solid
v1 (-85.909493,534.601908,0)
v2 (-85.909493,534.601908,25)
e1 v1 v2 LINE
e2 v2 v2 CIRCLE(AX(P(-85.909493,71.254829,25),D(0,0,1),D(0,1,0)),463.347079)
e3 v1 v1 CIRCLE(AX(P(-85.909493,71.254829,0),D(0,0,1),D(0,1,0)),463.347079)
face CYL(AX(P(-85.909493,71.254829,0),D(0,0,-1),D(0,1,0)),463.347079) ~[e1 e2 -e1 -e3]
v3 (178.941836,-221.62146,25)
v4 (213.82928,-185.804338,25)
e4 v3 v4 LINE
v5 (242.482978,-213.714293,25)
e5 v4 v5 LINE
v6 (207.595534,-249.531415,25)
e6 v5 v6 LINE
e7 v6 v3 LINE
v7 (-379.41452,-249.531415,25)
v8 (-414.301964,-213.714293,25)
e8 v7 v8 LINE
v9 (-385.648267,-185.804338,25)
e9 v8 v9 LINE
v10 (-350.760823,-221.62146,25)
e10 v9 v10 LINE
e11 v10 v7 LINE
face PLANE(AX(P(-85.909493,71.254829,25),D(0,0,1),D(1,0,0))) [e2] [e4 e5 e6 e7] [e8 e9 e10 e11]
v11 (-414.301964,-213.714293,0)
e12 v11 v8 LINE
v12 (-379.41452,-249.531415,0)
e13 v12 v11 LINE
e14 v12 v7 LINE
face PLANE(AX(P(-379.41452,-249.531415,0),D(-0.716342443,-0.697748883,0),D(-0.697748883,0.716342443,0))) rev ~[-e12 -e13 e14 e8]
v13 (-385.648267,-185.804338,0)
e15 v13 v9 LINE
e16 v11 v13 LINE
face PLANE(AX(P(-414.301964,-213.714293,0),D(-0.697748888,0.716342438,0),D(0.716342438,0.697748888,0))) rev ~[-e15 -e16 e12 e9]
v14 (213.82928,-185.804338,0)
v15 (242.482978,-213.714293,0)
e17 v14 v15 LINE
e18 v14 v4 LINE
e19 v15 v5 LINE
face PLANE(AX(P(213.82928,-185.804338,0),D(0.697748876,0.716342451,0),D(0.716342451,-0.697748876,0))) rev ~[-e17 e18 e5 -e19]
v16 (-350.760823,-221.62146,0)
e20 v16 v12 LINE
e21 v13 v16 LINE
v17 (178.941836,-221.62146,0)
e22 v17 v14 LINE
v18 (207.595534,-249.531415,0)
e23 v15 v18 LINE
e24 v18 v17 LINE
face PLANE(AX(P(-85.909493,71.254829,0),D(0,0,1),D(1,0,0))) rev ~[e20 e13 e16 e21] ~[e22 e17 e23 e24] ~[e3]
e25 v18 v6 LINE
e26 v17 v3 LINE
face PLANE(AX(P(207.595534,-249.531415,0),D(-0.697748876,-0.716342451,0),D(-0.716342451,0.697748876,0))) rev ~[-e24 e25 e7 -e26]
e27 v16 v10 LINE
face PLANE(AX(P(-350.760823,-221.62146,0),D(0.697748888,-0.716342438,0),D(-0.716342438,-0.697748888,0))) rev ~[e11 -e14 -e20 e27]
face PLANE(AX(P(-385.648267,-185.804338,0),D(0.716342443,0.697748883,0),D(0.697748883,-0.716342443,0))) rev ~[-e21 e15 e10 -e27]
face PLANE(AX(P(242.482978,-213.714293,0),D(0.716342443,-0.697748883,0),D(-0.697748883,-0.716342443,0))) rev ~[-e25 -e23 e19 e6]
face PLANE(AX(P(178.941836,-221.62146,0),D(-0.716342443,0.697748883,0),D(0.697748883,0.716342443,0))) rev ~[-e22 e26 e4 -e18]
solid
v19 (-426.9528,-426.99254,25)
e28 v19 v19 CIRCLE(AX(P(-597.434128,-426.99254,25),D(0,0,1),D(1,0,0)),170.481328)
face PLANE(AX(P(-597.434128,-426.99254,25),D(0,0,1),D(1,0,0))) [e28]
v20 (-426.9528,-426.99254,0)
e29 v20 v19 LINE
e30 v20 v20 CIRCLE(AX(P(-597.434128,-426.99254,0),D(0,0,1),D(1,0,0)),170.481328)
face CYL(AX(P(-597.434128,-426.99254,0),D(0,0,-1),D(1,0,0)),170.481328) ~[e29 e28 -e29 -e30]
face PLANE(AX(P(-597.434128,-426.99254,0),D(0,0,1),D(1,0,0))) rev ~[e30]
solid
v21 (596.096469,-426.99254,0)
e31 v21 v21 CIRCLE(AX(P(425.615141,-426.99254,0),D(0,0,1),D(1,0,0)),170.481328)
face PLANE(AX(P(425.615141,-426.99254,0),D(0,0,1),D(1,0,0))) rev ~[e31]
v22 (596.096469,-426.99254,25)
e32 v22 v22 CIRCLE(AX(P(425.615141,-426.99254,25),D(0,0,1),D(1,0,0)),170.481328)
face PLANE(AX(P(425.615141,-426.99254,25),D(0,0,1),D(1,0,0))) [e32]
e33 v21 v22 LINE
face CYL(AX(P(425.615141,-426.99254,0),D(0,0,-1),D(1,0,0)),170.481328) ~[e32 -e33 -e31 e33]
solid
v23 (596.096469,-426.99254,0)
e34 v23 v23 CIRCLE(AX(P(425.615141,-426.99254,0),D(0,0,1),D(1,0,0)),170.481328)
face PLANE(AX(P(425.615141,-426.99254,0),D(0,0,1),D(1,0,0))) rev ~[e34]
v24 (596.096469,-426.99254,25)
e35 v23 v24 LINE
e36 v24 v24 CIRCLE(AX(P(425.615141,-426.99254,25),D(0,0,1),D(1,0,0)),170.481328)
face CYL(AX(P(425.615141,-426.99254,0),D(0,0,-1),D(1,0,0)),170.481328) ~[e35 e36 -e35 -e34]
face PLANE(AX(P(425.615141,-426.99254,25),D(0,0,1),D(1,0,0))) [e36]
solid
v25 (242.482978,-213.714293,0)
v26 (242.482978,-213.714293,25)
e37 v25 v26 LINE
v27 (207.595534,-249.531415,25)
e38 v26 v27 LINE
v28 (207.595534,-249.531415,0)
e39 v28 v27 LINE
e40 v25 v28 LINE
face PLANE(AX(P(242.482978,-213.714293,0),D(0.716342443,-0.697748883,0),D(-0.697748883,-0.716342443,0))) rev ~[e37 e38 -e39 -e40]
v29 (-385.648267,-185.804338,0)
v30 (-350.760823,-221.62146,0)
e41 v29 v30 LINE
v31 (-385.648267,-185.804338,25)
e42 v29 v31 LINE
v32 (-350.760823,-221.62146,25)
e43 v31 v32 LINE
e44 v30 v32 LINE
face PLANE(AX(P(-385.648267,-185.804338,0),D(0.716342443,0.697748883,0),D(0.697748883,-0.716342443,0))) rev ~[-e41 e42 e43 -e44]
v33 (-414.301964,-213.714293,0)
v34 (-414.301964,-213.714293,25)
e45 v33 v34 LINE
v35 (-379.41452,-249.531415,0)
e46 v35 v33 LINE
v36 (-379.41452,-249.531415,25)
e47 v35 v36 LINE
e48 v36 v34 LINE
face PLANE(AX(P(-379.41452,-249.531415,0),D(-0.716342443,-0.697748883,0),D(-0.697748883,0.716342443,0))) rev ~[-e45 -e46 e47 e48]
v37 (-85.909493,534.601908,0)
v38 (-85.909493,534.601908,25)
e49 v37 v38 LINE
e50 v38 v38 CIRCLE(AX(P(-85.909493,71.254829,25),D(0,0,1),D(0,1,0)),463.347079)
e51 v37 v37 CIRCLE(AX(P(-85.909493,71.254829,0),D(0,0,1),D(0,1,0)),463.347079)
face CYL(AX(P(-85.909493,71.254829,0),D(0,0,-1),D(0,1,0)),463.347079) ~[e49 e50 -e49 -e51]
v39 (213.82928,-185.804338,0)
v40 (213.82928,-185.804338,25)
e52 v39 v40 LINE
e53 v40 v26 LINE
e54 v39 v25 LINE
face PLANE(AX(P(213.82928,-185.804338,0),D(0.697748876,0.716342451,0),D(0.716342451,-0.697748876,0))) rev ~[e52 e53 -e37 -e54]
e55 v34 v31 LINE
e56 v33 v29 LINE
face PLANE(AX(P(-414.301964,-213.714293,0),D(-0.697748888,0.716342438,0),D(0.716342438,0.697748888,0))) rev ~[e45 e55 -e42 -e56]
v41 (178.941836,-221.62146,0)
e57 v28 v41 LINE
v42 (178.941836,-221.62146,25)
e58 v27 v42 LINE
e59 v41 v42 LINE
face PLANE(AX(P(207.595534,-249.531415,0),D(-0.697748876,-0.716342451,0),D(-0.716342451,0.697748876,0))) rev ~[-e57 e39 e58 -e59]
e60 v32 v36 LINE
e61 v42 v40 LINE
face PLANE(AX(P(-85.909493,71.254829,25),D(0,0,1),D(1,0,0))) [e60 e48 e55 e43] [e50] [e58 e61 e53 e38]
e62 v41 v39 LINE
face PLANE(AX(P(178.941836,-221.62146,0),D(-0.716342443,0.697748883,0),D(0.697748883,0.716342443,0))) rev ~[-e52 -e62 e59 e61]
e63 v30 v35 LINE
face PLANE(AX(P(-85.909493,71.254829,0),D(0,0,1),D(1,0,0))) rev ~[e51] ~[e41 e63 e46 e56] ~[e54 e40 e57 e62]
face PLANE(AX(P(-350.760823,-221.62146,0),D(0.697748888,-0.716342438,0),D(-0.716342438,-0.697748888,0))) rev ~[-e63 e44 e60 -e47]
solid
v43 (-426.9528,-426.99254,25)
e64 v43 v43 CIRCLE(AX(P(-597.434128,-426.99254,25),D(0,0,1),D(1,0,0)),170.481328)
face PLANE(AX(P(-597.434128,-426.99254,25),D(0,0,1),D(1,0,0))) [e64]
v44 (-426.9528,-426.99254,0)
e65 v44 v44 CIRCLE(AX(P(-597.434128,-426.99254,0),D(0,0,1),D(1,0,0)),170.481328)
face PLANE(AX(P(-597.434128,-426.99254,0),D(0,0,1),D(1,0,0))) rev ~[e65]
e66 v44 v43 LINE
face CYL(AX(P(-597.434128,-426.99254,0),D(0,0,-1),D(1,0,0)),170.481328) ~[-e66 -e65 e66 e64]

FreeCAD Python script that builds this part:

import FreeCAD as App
import Part
import Sketcher
Q = App.Units.Quantity

doc = App.newDocument("Part")
params = doc.addObject("Spreadsheet::Sheet", "Params")
for row, (alias, value) in enumerate([
    ("sketch1_length", "39.999999 mm"),
    ("sketch1_length2", "50 mm"),
    ("pad1_length", "25 mm"),
    ("sketch2_length", "39.999999 mm"),
    ("sketch2_length2", "50 mm"),
    ("pad2_length", "25 mm"),
], start=1):
    params.set(f"A{row}", alias)
    params.set(f"B{row}", "=" + value)
    params.setAlias(f"B{row}", alias)

body = doc.addObject("PartDesign::Body", "Body")
body.AllowCompound = True

# Sketch on XY plane
sketch1 = body.newObject("Sketcher::SketchObject", "Sketch")
sketch1.AttachmentSupport = (doc.getObject("XY_Plane"), [""])
sketch1.MapMode = "FlatFace"
sketch1.addGeometry([
    Part.Circle(App.Vector(-85.909493, 71.254829, 0), App.Vector(0, 0, 1), 463.347079),  # 0
    Part.LineSegment(App.Vector(-350.760823, -221.62146, 0), App.Vector(-379.41452, -249.531415, 0)),  # 1
    Part.LineSegment(App.Vector(-379.41452, -249.531415, 0), App.Vector(-414.301964, -213.714293, 0)),  # 2
    Part.LineSegment(App.Vector(-414.301964, -213.714293, 0), App.Vector(-385.648267, -185.804338, 0)),  # 3
    Part.LineSegment(App.Vector(-385.648267, -185.804338, 0), App.Vector(-350.760823, -221.62146, 0)),  # 4
    Part.LineSegment(App.Vector(213.82928, -185.804338, 0), App.Vector(242.482978, -213.714293, 0)),  # 5
    Part.LineSegment(App.Vector(242.482978, -213.714293, 0), App.Vector(207.595534, -249.531415, 0)),  # 6
    Part.LineSegment(App.Vector(207.595534, -249.531415, 0), App.Vector(178.941836, -221.62146, 0)),  # 7
    Part.LineSegment(App.Vector(178.941836, -221.62146, 0), App.Vector(213.82928, -185.804338, 0)),  # 8
    Part.Circle(App.Vector(-597.434128, -426.99254, 0), App.Vector(0, 0, 1), 170.481328),  # 9
    Part.Circle(App.Vector(425.615141, -426.99254, 0), App.Vector(0, 0, 1), 170.481328),  # 10
], False)
sketch1.addConstraint([
    Sketcher.Constraint("Coincident", 1, 2, 2, 1),
    Sketcher.Constraint("Coincident", 2, 2, 3, 1),
    Sketcher.Constraint("Coincident", 3, 2, 4, 1),
    Sketcher.Constraint("Coincident", 4, 2, 1, 1),
    Sketcher.Constraint("Coincident", 5, 2, 6, 1),
    Sketcher.Constraint("Coincident", 6, 2, 7, 1),
    Sketcher.Constraint("Coincident", 7, 2, 8, 1),
    Sketcher.Constraint("Coincident", 8, 2, 5, 1),
    Sketcher.Constraint("Equal", 9, 10),
    Sketcher.Constraint("Perpendicular", 1, 2),
    Sketcher.Constraint("Perpendicular", 2, 3),
    Sketcher.Constraint("Perpendicular", 3, 4),
    Sketcher.Constraint("Perpendicular", 5, 6),
    Sketcher.Constraint("Perpendicular", 6, 7),
    Sketcher.Constraint("Perpendicular", 7, 8),
    Sketcher.Constraint("Horizontal", 9, 3, 10, 3),
    Sketcher.Constraint("Horizontal", 2, 2, 5, 2),
    Sketcher.Constraint("Horizontal", 1, 2, 6, 2),
    Sketcher.Constraint("Horizontal", 4, 2, 7, 2),
    Sketcher.Constraint("Equal", 3, 5),
    Sketcher.Constraint("Distance", 1, Q("39.999999 mm")),
    Sketcher.Constraint("Distance", 2, Q("50 mm")),
    Sketcher.Constraint("Diameter", 0, Q("926.694158 mm")),
    Sketcher.Constraint("Diameter", 9, Q("340.962656 mm")),
    Sketcher.Constraint("DistanceX", 4, 2, 5, 2, Q("593.243801 mm")),
    Sketcher.Constraint("DistanceX", 1, 2, 5, 2, Q("621.897498 mm")),
    Sketcher.Constraint("DistanceY", -1, 1, 0, 3, Q("71.254829 mm")),
    Sketcher.Constraint("DistanceX", 9, 3, -1, 1, Q("597.434128 mm")),
    Sketcher.Constraint("DistanceY", 9, 3, -1, 1, Q("426.99254 mm")),
    Sketcher.Constraint("DistanceX", -1, 1, 10, 3, Q("425.615141 mm")),
    Sketcher.Constraint("DistanceX", 1, 2, -1, 1, Q("379.41452 mm")),
    Sketcher.Constraint("DistanceY", 3, 2, -1, 1, Q("185.804338 mm")),
    Sketcher.Constraint("DistanceX", 2, 2, 0, 3, Q("328.392471 mm")),
])
sketch1.setExpression("Constraints[20]", "Params.sketch1_length")
sketch1.setExpression("Constraints[21]", "Params.sketch1_length2")
pad1 = body.newObject("PartDesign::Pad", "Pad")
pad1.Profile = sketch1
pad1.setExpression("Length", "Params.pad1_length")
body2 = doc.addObject("PartDesign::Body", "Body001")
body2.AllowCompound = True

# Sketch on XY plane
sketch2 = body2.newObject("Sketcher::SketchObject", "Sketch001")
sketch2.AttachmentSupport = (doc.getObject("XY_Plane001"), [""])
sketch2.MapMode = "FlatFace"
sketch2.addGeometry([
    Part.Circle(App.Vector(-85.909493, 71.254829, 0), App.Vector(0, 0, 1), 463.347079),  # 0
    Part.LineSegment(App.Vector(-350.760823, -221.62146, 0), App.Vector(-379.41452, -249.531415, 0)),  # 1
    Part.LineSegment(App.Vector(-379.41452, -249.531415, 0), App.Vector(-414.301964, -213.714293, 0)),  # 2
    Part.LineSegment(App.Vector(-414.301964, -213.714293, 0), App.Vector(-385.648267, -185.804338, 0)),  # 3
    Part.LineSegment(App.Vector(-385.648267, -185.804338, 0), App.Vector(-350.760823, -221.62146, 0)),  # 4
    Part.LineSegment(App.Vector(213.82928, -185.804338, 0), App.Vector(242.482978, -213.714293, 0)),  # 5
    Part.LineSegment(App.Vector(242.482978, -213.714293, 0), App.Vector(207.595534, -249.531415, 0)),  # 6
    Part.LineSegment(App.Vector(207.595534, -249.531415, 0), App.Vector(178.941836, -221.62146, 0)),  # 7
    Part.LineSegment(App.Vector(178.941836, -221.62146, 0), App.Vector(213.82928, -185.804338, 0)),  # 8
    Part.Circle(App.Vector(-597.434128, -426.99254, 0), App.Vector(0, 0, 1), 170.481328),  # 9
    Part.Circle(App.Vector(425.615141, -426.99254, 0), App.Vector(0, 0, 1), 170.481328),  # 10
], False)
sketch2.addConstraint([
    Sketcher.Constraint("Coincident", 1, 2, 2, 1),
    Sketcher.Constraint("Coincident", 2, 2, 3, 1),
    Sketcher.Constraint("Coincident", 3, 2, 4, 1),
    Sketcher.Constraint("Coincident", 4, 2, 1, 1),
    Sketcher.Constraint("Coincident", 5, 2, 6, 1),
    Sketcher.Constraint("Coincident", 6, 2, 7, 1),
    Sketcher.Constraint("Coincident", 7, 2, 8, 1),
    Sketcher.Constraint("Coincident", 8, 2, 5, 1),
    Sketcher.Constraint("Equal", 9, 10),
    Sketcher.Constraint("Perpendicular", 1, 2),
    Sketcher.Constraint("Perpendicular", 2, 3),
    Sketcher.Constraint("Perpendicular", 3, 4),
    Sketcher.Constraint("Perpendicular", 5, 6),
    Sketcher.Constraint("Perpendicular", 6, 7),
    Sketcher.Constraint("Perpendicular", 7, 8),
    Sketcher.Constraint("Horizontal", 9, 3, 10, 3),
    Sketcher.Constraint("Horizontal", 2, 2, 5, 2),
    Sketcher.Constraint("Horizontal", 1, 2, 6, 2),
    Sketcher.Constraint("Horizontal", 4, 2, 7, 2),
    Sketcher.Constraint("Equal", 3, 5),
    Sketcher.Constraint("Distance", 1, Q("39.999999 mm")),
    Sketcher.Constraint("Distance", 2, Q("50 mm")),
    Sketcher.Constraint("Diameter", 0, Q("926.694158 mm")),
    Sketcher.Constraint("Diameter", 9, Q("340.962656 mm")),
    Sketcher.Constraint("DistanceX", 4, 2, 5, 2, Q("593.243801 mm")),
    Sketcher.Constraint("DistanceX", 1, 2, 5, 2, Q("621.897498 mm")),
    Sketcher.Constraint("DistanceY", -1, 1, 0, 3, Q("71.254829 mm")),
    Sketcher.Constraint("DistanceX", 9, 3, -1, 1, Q("597.434128 mm")),
    Sketcher.Constraint("DistanceY", 9, 3, -1, 1, Q("426.99254 mm")),
    Sketcher.Constraint("DistanceX", -1, 1, 10, 3, Q("425.615141 mm")),
    Sketcher.Constraint("DistanceX", 1, 2, -1, 1, Q("379.41452 mm")),
    Sketcher.Constraint("DistanceY", 3, 2, -1, 1, Q("185.804338 mm")),
    Sketcher.Constraint("DistanceX", 2, 2, 0, 3, Q("328.392471 mm")),
])
sketch2.setExpression("Constraints[20]", "Params.sketch2_length")
sketch2.setExpression("Constraints[21]", "Params.sketch2_length2")
pad2 = body2.newObject("PartDesign::Pad", "Pad001")
pad2.Profile = sketch2
pad2.setExpression("Length", "Params.pad2_length")

doc.recompute()
